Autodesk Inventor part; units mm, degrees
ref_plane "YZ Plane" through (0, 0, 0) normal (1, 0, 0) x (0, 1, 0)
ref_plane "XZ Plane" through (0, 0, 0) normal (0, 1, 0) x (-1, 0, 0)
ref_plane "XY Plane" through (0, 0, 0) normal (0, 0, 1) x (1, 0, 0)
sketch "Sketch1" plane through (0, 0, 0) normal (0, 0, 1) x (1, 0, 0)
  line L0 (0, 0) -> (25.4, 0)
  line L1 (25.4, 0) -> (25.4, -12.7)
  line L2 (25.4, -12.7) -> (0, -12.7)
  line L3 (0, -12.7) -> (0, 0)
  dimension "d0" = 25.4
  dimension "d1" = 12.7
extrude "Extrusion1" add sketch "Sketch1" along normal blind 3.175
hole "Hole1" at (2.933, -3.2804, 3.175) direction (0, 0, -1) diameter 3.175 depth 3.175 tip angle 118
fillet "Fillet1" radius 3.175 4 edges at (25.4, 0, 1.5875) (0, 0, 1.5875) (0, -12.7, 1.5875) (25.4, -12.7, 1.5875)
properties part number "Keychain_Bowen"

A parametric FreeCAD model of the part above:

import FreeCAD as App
import Part
import Sketcher
Q = App.Units.Quantity


def edges_at(feature, points):
    """Names of the edges that pass closest to the given points."""
    edges = feature.Shape.Edges
    near = lambda p: min(range(len(edges)), key=lambda i: edges[i].distToShape(Part.Vertex(*p))[0])
    return sorted({f"Edge{near(p) + 1}" for p in points})


def add_polygon(sketch, points):
    """Adds a closed chain of lines whose ends are joined by coincident constraints."""
    first, n = sketch.GeometryCount, len(points)
    for a, b in zip(points, points[1:] + points[:1]):
        sketch.addGeometry(Part.LineSegment(App.Vector(*a, 0), App.Vector(*b, 0)), False)
    for i in range(n):
        sketch.addConstraint(Sketcher.Constraint("Coincident", first + i, 2, first + (i + 1) % n, 1))

doc = App.newDocument("Part")
body = doc.addObject("PartDesign::Body", "Body")

sketch1 = body.newObject("Sketcher::SketchObject", "Sketch")
sketch1.AttachmentSupport = (doc.getObject("XY_Plane"), [""])
sketch1.MapMode = "FlatFace"
add_polygon(sketch1, [(25.4, 0), (0, 0), (0, -12.7), (25.4, -12.7)])
sketch1.addConstraint([
    Sketcher.Constraint("Horizontal", 0),
    Sketcher.Constraint("Vertical", 1),
    Sketcher.Constraint("Horizontal", 2),
    Sketcher.Constraint("Vertical", 3),
    Sketcher.Constraint("Coincident", 0, 2, -1, 1),
    Sketcher.Constraint("DistanceX", 0, 2, 0, 1, Q("1 in")),
    Sketcher.Constraint("DistanceY", 1, 2, 1, 1, Q("0.5 in")),
])
pad1 = body.newObject("PartDesign::Pad", "Pad")
pad1.Profile = sketch1
pad1.Length = Q("0.125 in")

sketch2 = body.newObject("Sketcher::SketchObject", "Sketch001")
sketch2.AttachmentSupport = (doc.getObject("XY_Plane"), [""])
sketch2.MapMode = "FlatFace"
sketch2.AttachmentOffset = App.Placement(App.Vector(0, 0, 0.125 * 25.4), App.Rotation())
sketch2.addGeometry(Part.Circle(App.Vector(2.933, -3.2804, 0), App.Vector(0, 0, 1), 1.5875), False)
sketch2.addConstraint([
    Sketcher.Constraint("Diameter", 0, Q("0.125 in")),
    Sketcher.Constraint("DistanceX", -1, 1, 0, 3, 2.933),
    Sketcher.Constraint("DistanceY", 0, 3, -1, 1, 3.2804),
])
doc.recompute()
hole = body.newObject("PartDesign::Hole", "Hole")
hole.Profile = sketch2
hole.ThreadType = "None"
hole.Diameter = Q("0.125 in")
hole.DepthType = "Dimension"
hole.Depth = Q("0.125 in")
hole.DrillPoint = "Angled"
hole.DrillPointAngle = 118
doc.recompute()

fillet = body.newObject("PartDesign::Fillet", "Fillet")
fillet.Base = (hole, edges_at(hole, [
    (25.4, 0, 1.587),
    (0, 0, 1.587),
    (0, -12.7, 1.587),
    (25.4, -12.7, 1.587),
]))
fillet.Radius = Q("0.125 in")

doc.recompute()
